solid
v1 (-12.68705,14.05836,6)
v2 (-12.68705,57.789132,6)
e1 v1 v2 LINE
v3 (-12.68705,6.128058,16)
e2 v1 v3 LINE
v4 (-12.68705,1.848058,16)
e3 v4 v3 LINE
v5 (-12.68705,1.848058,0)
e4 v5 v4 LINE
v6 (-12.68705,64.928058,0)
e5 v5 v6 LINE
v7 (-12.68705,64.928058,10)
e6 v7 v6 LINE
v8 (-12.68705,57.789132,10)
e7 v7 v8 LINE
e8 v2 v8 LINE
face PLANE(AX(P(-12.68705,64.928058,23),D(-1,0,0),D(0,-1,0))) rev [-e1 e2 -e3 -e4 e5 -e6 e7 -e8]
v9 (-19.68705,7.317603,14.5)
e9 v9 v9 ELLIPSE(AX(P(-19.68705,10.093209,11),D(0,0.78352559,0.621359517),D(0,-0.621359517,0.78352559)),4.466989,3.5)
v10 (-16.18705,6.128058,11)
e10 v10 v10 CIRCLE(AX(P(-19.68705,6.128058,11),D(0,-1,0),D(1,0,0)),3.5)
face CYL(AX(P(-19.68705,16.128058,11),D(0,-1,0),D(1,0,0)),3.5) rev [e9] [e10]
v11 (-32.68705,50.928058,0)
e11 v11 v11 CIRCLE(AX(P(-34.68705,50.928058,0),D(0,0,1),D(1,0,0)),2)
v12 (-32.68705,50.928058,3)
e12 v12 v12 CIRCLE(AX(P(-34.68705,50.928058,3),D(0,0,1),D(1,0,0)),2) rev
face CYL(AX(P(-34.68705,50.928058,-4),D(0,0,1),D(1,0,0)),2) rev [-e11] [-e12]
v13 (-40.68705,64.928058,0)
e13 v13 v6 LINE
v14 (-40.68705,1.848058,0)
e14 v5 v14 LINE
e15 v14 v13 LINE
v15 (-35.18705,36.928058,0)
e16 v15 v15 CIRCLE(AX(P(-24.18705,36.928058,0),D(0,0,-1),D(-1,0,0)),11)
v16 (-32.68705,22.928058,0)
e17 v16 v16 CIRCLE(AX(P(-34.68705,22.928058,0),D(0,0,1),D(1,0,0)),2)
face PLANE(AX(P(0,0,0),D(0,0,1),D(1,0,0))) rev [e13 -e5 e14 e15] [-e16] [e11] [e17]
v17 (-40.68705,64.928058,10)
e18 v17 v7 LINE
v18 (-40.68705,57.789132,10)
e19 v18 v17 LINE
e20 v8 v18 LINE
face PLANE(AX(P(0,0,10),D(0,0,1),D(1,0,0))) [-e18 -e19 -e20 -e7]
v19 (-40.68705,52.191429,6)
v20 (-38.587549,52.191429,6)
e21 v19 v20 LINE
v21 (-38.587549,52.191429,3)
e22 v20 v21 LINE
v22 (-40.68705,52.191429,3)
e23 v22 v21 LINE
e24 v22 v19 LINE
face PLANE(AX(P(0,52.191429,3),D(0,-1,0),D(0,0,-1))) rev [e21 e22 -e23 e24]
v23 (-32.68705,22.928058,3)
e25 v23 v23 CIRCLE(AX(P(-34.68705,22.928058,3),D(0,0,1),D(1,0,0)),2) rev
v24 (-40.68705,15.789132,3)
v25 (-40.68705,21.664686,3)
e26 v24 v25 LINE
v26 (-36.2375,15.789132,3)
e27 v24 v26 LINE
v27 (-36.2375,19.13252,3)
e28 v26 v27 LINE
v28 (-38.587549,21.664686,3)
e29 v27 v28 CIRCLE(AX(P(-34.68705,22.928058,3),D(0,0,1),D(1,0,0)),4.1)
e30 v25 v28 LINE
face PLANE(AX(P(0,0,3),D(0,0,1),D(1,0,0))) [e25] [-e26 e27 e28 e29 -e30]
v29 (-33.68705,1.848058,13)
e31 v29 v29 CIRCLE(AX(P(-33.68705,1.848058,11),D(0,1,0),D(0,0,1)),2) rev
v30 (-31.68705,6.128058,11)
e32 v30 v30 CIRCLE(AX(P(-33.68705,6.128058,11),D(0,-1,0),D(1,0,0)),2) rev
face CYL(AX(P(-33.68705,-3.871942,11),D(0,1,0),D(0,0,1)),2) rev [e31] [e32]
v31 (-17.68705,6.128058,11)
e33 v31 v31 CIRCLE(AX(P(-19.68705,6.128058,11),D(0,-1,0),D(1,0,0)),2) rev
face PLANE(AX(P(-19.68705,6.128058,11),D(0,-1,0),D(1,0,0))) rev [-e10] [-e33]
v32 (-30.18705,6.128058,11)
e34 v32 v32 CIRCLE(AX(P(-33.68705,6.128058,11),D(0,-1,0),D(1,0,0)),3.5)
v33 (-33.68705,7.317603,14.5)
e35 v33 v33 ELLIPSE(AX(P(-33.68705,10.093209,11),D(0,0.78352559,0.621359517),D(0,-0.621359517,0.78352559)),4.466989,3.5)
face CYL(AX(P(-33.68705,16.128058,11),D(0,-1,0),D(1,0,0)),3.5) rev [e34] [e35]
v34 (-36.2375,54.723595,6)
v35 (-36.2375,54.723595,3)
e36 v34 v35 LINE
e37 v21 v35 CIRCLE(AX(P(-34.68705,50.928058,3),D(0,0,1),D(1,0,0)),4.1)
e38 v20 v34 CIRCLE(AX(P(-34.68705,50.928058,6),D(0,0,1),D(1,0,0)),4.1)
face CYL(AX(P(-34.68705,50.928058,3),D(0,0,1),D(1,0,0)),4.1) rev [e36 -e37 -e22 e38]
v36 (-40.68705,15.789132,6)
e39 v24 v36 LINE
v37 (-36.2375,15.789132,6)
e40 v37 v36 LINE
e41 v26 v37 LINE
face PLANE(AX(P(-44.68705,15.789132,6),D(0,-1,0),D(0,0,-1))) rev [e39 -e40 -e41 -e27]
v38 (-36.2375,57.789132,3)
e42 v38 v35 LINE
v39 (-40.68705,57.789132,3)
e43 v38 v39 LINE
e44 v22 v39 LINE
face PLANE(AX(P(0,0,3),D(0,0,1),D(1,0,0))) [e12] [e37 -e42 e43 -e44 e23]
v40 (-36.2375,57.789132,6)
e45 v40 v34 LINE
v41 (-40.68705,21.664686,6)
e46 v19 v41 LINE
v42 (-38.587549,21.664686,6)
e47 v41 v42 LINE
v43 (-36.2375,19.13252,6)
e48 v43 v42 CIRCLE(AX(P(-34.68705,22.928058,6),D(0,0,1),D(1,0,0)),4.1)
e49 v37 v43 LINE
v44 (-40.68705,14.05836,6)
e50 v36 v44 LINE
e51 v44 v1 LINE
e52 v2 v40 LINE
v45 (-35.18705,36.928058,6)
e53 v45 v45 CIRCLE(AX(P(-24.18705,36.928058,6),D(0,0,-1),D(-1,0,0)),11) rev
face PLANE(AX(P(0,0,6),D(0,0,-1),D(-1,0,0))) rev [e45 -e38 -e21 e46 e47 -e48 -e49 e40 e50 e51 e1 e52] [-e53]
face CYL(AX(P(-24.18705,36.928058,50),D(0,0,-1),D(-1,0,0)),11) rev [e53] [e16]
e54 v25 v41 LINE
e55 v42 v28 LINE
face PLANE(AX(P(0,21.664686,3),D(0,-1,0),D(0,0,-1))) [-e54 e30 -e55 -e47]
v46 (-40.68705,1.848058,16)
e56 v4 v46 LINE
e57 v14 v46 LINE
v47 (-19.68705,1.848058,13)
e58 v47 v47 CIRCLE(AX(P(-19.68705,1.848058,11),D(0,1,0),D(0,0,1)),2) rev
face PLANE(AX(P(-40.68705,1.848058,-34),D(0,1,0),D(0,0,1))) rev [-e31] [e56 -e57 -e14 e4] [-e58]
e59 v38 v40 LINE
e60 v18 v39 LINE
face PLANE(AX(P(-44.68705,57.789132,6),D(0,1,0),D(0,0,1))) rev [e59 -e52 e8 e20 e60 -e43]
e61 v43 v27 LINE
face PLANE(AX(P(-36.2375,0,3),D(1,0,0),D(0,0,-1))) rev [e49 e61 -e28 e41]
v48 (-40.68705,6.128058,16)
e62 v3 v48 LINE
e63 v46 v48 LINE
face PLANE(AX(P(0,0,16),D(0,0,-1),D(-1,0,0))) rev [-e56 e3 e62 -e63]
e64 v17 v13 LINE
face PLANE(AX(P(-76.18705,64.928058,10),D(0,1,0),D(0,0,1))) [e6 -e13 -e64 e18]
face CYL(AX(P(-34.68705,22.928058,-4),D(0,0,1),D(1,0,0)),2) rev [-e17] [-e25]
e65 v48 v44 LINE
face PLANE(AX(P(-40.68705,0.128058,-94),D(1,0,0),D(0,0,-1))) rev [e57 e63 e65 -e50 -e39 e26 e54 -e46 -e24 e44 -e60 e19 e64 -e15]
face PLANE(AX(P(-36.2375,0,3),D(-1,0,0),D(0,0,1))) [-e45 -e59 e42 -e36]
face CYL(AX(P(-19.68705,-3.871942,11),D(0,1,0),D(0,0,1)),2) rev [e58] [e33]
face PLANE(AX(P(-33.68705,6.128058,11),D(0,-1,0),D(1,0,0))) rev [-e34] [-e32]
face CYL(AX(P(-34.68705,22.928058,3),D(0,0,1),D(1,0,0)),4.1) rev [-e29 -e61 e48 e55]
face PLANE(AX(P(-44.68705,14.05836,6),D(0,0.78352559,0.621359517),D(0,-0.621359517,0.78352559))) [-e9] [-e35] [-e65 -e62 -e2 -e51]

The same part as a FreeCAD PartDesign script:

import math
import FreeCAD as App
import Part
import Sketcher
from FreeCAD import Vector
Q = App.Units.Quantity


def add_polygon(sketch, points):
    """Adds a closed chain of lines whose ends are joined by coincident constraints."""
    first, n = sketch.GeometryCount, len(points)
    for a, b in zip(points, points[1:] + points[:1]):
        sketch.addGeometry(Part.LineSegment(App.Vector(*a, 0), App.Vector(*b, 0)), False)
    for i in range(n):
        sketch.addConstraint(Sketcher.Constraint("Coincident", first + i, 2, first + (i + 1) % n, 1))

doc = App.newDocument("Part")
params = doc.addObject("Spreadsheet::Sheet", "Params")
for row, (alias, value) in enumerate([
    ("sketch1_width", "93 mm"),
    ("sketch1_height", "100 mm"),
    ("pad1_length", "10 mm"),
    ("sketch2_width", "15 mm"),
    ("sketch2_height", "10.01 mm"),
    ("pad2_length", "24 mm"),
    ("sketch3_diameter", "4 mm"),
    ("pocket1_length", "50 mm"),
    ("sketch4_diameter", "22 mm"),
    ("pocket2_length", "50 mm"),
    ("sketch5_height", "42 mm"),
    ("sketch5_width", "61.5 mm"),
    ("pocket3_length", "4 mm"),
    ("sketch6_diameter", "22 mm"),
    ("pocket4_length", "15 mm"),
    ("sketch7_diameter", "4 mm"),
    ("pocket5_length", "10 mm"),
    ("sketch8_width", "40 mm"),
    ("sketch8_height", "6 mm"),
    ("pad3_length", "27 mm"),
    ("sketch9_width", "40 mm"),
    ("sketch9_height", "6.3 mm"),
    ("pad4_length", "40 mm"),
    ("sketch10_diameter", "16 mm"),
    ("pocket6_length", "40 mm"),
    ("sketch11_height", "41.8 mm"),
    ("pocket7_length", "40 mm"),
    ("sketch12_width", "31.5 mm"),
    ("sketch12_height", "23.2 mm"),
    ("pocket8_length", "20 mm"),
    ("sketch13_radius", "4 mm"),
    ("pocket9_length", "3 mm"),
    ("sketch14_diameter", "8 mm"),
    ("sketch14_diameter2", "8.2 mm"),
    ("pocket10_length", "3 mm"),
    ("sketch15_width", "29.5 mm"),
    ("sketch15_height", "58.2 mm"),
    ("pocket11_length", "23 mm"),
    ("sketch16_width", "32 mm"),
    ("sketch16_height", "4 mm"),
    ("pocket12_length", "23 mm"),
    ("sketch17_width", "32 mm"),
    ("sketch17_height", "6 mm"),
    ("pad5_length", "6.6 mm"),
    ("sketch18_width", "32 mm"),
    ("sketch18_height", "6 mm"),
    ("pad6_length", "10 mm"),
    ("sketch19_diameter", "4 mm"),
    ("pocket13_length", "10 mm"),
    ("sketch20_height", "10 mm"),
    ("pad7_length", "32 mm"),
    ("sketch21_diameter", "7 mm"),
    ("pocket14_length", "10 mm"),
    ("sketch22_width", "46 mm"),
    ("sketch22_height", "27 mm"),
    ("pocket15_length", "50 mm"),
    ("sketch23_height", "35 mm"),
    ("sketch23_width", "31.75 mm"),
    ("pocket16_length", "50 mm"),
    ("sketch24_width", "4 mm"),
    ("pocket17_length", "110 mm"),
    ("sketch25_width", "28 mm"),
    ("sketch25_height", "1.72 mm"),
    ("pocket18_length", "50 mm"),
], start=1):
    params.set(f"A{row}", alias)
    params.set(f"B{row}", "=" + value)
    params.setAlias(f"B{row}", alias)

body = doc.addObject("PartDesign::Body", "Body")

# Sketch on XY plane
sketch1 = body.newObject("Sketcher::SketchObject", "Sketch")
sketch1.AttachmentSupport = (doc.getObject("XY_Plane"), [""])
sketch1.MapMode = "FlatFace"
add_polygon(sketch1, [(-76, 65), (-76, -35), (17, -35), (17, 65)])  # lines 0-3
sketch1.addConstraint(Sketcher.Constraint("Vertical", 0))
sketch1.addConstraint(Sketcher.Constraint("Horizontal", 1))
sketch1.addConstraint(Sketcher.Constraint("Vertical", 2))
sketch1.addConstraint(Sketcher.Constraint("Horizontal", 3))
sketch1.addConstraint(Sketcher.Constraint("DistanceX", 1, 1, 1, 2, Q("93 mm")))
sketch1.addConstraint(Sketcher.Constraint("DistanceY", 0, 2, 0, 1, Q("100 mm")))
sketch1.addConstraint(Sketcher.Constraint("DistanceX", 0, 2, -1, 1, Q("76.18705 mm")))
sketch1.addConstraint(Sketcher.Constraint("DistanceY", 0, 2, -1, 1, Q("35.071942 mm")))
sketch1.setExpression("Constraints[8]", "Params.sketch1_width")
sketch1.setExpression("Constraints[9]", "Params.sketch1_height")
pad1 = body.newObject("PartDesign::Pad", "Pad")
pad1.Profile = sketch1
pad1.setExpression("Length", "Params.pad1_length")

# Sketch on YZ plane
sketch2 = body.newObject("Sketcher::SketchObject", "Sketch001")
sketch2.AttachmentSupport = (doc.getObject("YZ_Plane"), [""])
sketch2.MapMode = "FlatFace"
sketch2.AttachmentOffset = App.Placement(Vector(0, 0, 16.81295), App.Rotation())
add_polygon(sketch2, [(-5, 10), (-20, 10), (-20, 0), (-5, 0)])  # lines 0-3
sketch2.addConstraint(Sketcher.Constraint("Horizontal", 0))
sketch2.addConstraint(Sketcher.Constraint("Vertical", 1))
sketch2.addConstraint(Sketcher.Constraint("Horizontal", 2))
sketch2.addConstraint(Sketcher.Constraint("Vertical", 3))
sketch2.addConstraint(Sketcher.Constraint("DistanceX", 0, 2, 0, 1, Q("15 mm")))
sketch2.addConstraint(Sketcher.Constraint("DistanceY", -1, 1, 0, 2, Q("10 mm")))
sketch2.addConstraint(Sketcher.Constraint("DistanceY", 1, 2, 1, 1, Q("10.01 mm")))
sketch2.addConstraint(Sketcher.Constraint("DistanceX", 0, 2, -1, 1, Q("20.071942 mm")))
sketch2.setExpression("Constraints[8]", "Params.sketch2_width")
sketch2.setExpression("Constraints[10]", "Params.sketch2_height")
pad2 = body.newObject("PartDesign::Pad", "Pad001")
pad2.Profile = sketch2
pad2.setExpression("Length", "Params.pad2_length")

# Sketch on XZ plane
sketch3 = body.newObject("Sketcher::SketchObject", "Sketch002")
sketch3.AttachmentSupport = (doc.getObject("XZ_Plane"), [""])
sketch3.MapMode = "FlatFace"
sketch3.AttachmentOffset = App.Placement(Vector(0, 0, 5.071942), App.Rotation())
sketch3.addGeometry(Part.Circle(Vector(26.8, 5, 0), Vector(0, 0, 1), 2), False)
sketch3.addConstraint(Sketcher.Constraint("Diameter", 0, Q("4 mm")))
sketch3.addConstraint(Sketcher.Constraint("DistanceY", -1, 1, 0, 3, Q("5 mm")))
sketch3.addConstraint(Sketcher.Constraint("DistanceX", -1, 1, 0, 3, Q("26.81295 mm")))
sketch3.setExpression("Constraints[0]", "Params.sketch3_diameter")
pocket1 = body.newObject("PartDesign::Pocket", "Pocket")
pocket1.Profile = sketch3
pocket1.setExpression("Length", "Params.pocket1_length")
pocket1.Reversed = True

# Sketch on XY plane
sketch4 = body.newObject("Sketcher::SketchObject", "Sketch003")
sketch4.AttachmentSupport = (doc.getObject("XY_Plane"), [""])
sketch4.MapMode = "FlatFace"
sketch4.addGeometry(Part.Circle(Vector(-24, 37, 0), Vector(0, 0, 1), 11), False)
sketch4.addConstraint(Sketcher.Constraint("Diameter", 0, Q("22 mm")))
sketch4.addConstraint(Sketcher.Constraint("DistanceX", 0, 3, -1, 1, Q("24.18705 mm")))
sketch4.addConstraint(Sketcher.Constraint("DistanceY", -1, 1, 0, 3, Q("36.928058 mm")))
sketch4.setExpression("Constraints[0]", "Params.sketch4_diameter")
pocket2 = body.newObject("PartDesign::Pocket", "Pocket001")
pocket2.Profile = sketch4
pocket2.setExpression("Length", "Params.pocket2_length")
pocket2.Reversed = True

# Sketch on XY plane
sketch5 = body.newObject("Sketcher::SketchObject", "Sketch004")
sketch5.AttachmentSupport = (doc.getObject("XY_Plane"), [""])
sketch5.MapMode = "FlatFace"
sketch5.AttachmentOffset = App.Placement(Vector(0, 0, 10), App.Rotation())
add_polygon(sketch5, [(-45, 58), (-45, 16), (17, 16), (17, 58)])  # lines 0-3
sketch5.addConstraint(Sketcher.Constraint("Vertical", 0))
sketch5.addConstraint(Sketcher.Constraint("Horizontal", 1))
sketch5.addConstraint(Sketcher.Constraint("Vertical", 2))
sketch5.addConstraint(Sketcher.Constraint("Horizontal", 3))
sketch5.addConstraint(Sketcher.Constraint("DistanceY", 0, 2, 0, 1, Q("42 mm")))
sketch5.addConstraint(Sketcher.Constraint("DistanceX", 1, 1, 1, 2, Q("61.5 mm")))
sketch5.addConstraint(Sketcher.Constraint("DistanceX", 0, 2, -1, 1, Q("44.68705 mm")))
sketch5.addConstraint(Sketcher.Constraint("DistanceY", -1, 1, 0, 2, Q("15.789132 mm")))
sketch5.setExpression("Constraints[8]", "Params.sketch5_height")
sketch5.setExpression("Constraints[9]", "Params.sketch5_width")
pocket3 = body.newObject("PartDesign::Pocket", "Pocket002")
pocket3.Profile = sketch5
pocket3.setExpression("Length", "Params.pocket3_length")

# Sketch on XY plane
sketch6 = body.newObject("Sketcher::SketchObject", "Sketch005")
sketch6.AttachmentSupport = (doc.getObject("XY_Plane"), [""])
sketch6.MapMode = "FlatFace"
sketch6.addGeometry(Part.Circle(Vector(-53, 37, 0), Vector(0, 0, 1), 11), False)
sketch6.addConstraint(Sketcher.Constraint("Diameter", 0, Q("22 mm")))
sketch6.addConstraint(Sketcher.Constraint("DistanceX", 0, 3, -1, 1, Q("53.18705 mm")))
sketch6.addConstraint(Sketcher.Constraint("DistanceY", -1, 1, 0, 3, Q("36.928058 mm")))
sketch6.setExpression("Constraints[0]", "Params.sketch6_diameter")
pocket4 = body.newObject("PartDesign::Pocket", "Pocket003")
pocket4.Profile = sketch6
pocket4.setExpression("Length", "Params.pocket4_length")
pocket4.Reversed = True

# Sketch on XY plane
sketch7 = body.newObject("Sketcher::SketchObject", "Sketch006")
sketch7.AttachmentSupport = (doc.getObject("XY_Plane"), [""])
sketch7.MapMode = "FlatFace"
sketch7.AttachmentOffset = App.Placement(Vector(0, 0, 6), App.Rotation())
sketch7.addGeometry(Part.Circle(Vector(-34.7, 50.9, 0), Vector(0, 0, 1), 2), False)
sketch7.addGeometry(Part.Circle(Vector(5.3, 50.9, 0), Vector(0, 0, 1), 2), False)
sketch7.addGeometry(Part.Circle(Vector(-34.7, 22.9, 0), Vector(0, 0, 1), 2), False)
sketch7.addGeometry(Part.Circle(Vector(5.3, 22.9, 0), Vector(0, 0, 1), 2), False)
sketch7.addConstraint(Sketcher.Constraint("Equal", 0, 1))
sketch7.addConstraint(Sketcher.Constraint("Equal", 1, 2))
sketch7.addConstraint(Sketcher.Constraint("Equal", 2, 3))
sketch7.addConstraint(Sketcher.Constraint("Horizontal", 0, 3, 1, 3))
sketch7.addConstraint(Sketcher.Constraint("Horizontal", 2, 3, 3, 3))
sketch7.addConstraint(Sketcher.Constraint("Vertical", 0, 3, 2, 3))
sketch7.addConstraint(Sketcher.Constraint("Vertical", 1, 3, 3, 3))
sketch7.addConstraint(Sketcher.Constraint("Diameter", 0, Q("4 mm")))
sketch7.addConstraint(Sketcher.Constraint("DistanceX", 0, 3, 1, 3, Q("40 mm")))
sketch7.addConstraint(Sketcher.Constraint("DistanceY", 2, 3, 0, 3, Q("28 mm")))
sketch7.addConstraint(Sketcher.Constraint("DistanceX", 0, 3, -1, 1, Q("34.68705 mm")))
sketch7.addConstraint(Sketcher.Constraint("DistanceY", -1, 1, 0, 3, Q("50.928058 mm")))
sketch7.setExpression("Constraints[7]", "Params.sketch7_diameter")
pocket5 = body.newObject("PartDesign::Pocket", "Pocket004")
pocket5.Profile = sketch7
pocket5.setExpression("Length", "Params.pocket5_length")

# Sketch on XY plane
sketch8 = body.newObject("Sketcher::SketchObject", "Sketch007")
sketch8.AttachmentSupport = (doc.getObject("XY_Plane"), [""])
sketch8.MapMode = "FlatFace"
add_polygon(sketch8, [(-36, 65), (-36, 59), (-76, 59), (-76, 65)])  # lines 0-3
sketch8.addConstraint(Sketcher.Constraint("Vertical", 0))
sketch8.addConstraint(Sketcher.Constraint("Horizontal", 1))
sketch8.addConstraint(Sketcher.Constraint("Vertical", 2))
sketch8.addConstraint(Sketcher.Constraint("Horizontal", 3))
sketch8.addConstraint(Sketcher.Constraint("DistanceX", 1, 2, 1, 1, Q("40 mm")))
sketch8.addConstraint(Sketcher.Constraint("DistanceY", 0, 2, 0, 1, Q("6 mm")))
sketch8.addConstraint(Sketcher.Constraint("DistanceX", 0, 2, -1, 1, Q("36.18705 mm")))
sketch8.addConstraint(Sketcher.Constraint("DistanceY", -1, 1, 0, 2, Q("58.928058 mm")))
sketch8.setExpression("Constraints[8]", "Params.sketch8_width")
sketch8.setExpression("Constraints[9]", "Params.sketch8_height")
pad3 = body.newObject("PartDesign::Pad", "Pad002")
pad3.Profile = sketch8
pad3.setExpression("Length", "Params.pad3_length")
pad3.Reversed = True

# Sketch on XZ plane
sketch9 = body.newObject("Sketcher::SketchObject", "Sketch008")
sketch9.AttachmentSupport = (doc.getObject("XZ_Plane"), [""])
sketch9.MapMode = "FlatFace"
sketch9.AttachmentOffset = App.Placement(Vector(0, 0, -58.928058), App.Rotation())
add_polygon(sketch9, [(-76, -21), (-76, -27), (-36, -27), (-36, -21)])  # lines 0-3
sketch9.addConstraint(Sketcher.Constraint("Vertical", 0))
sketch9.addConstraint(Sketcher.Constraint("Horizontal", 1))
sketch9.addConstraint(Sketcher.Constraint("Vertical", 2))
sketch9.addConstraint(Sketcher.Constraint("Horizontal", 3))
sketch9.addConstraint(Sketcher.Constraint("DistanceX", 1, 1, 1, 2, Q("40 mm")))
sketch9.addConstraint(Sketcher.Constraint("DistanceY", 0, 2, 0, 1, Q("6.3 mm")))
sketch9.addConstraint(Sketcher.Constraint("DistanceY", 0, 2, -1, 1, Q("27 mm")))
sketch9.addConstraint(Sketcher.Constraint("DistanceX", 0, 2, -1, 1, Q("76.18705 mm")))
sketch9.setExpression("Constraints[8]", "Params.sketch9_width")
sketch9.setExpression("Constraints[9]", "Params.sketch9_height")
pad4 = body.newObject("PartDesign::Pad", "Pad003")
pad4.Profile = sketch9
pad4.setExpression("Length", "Params.pad4_length")

# Sketch on XY plane
sketch10 = body.newObject("Sketcher::SketchObject", "Sketch009")
sketch10.AttachmentSupport = (doc.getObject("XY_Plane"), [""])
sketch10.MapMode = "FlatFace"
sketch10.AttachmentOffset = App.Placement(Vector(0, 0, 10), App.Rotation())
sketch10.addGeometry(Part.Circle(Vector(-53, 37, 0), Vector(0, 0, 1), 8), False)
sketch10.addConstraint(Sketcher.Constraint("Diameter", 0, Q("16 mm")))
sketch10.addConstraint(Sketcher.Constraint("DistanceX", 0, 3, -1, 1, Q("53.18705 mm")))
sketch10.addConstraint(Sketcher.Constraint("DistanceY", -1, 1, 0, 3, Q("36.928058 mm")))
sketch10.setExpression("Constraints[0]", "Params.sketch10_diameter")
pocket6 = body.newObject("PartDesign::Pocket", "Pocket005")
pocket6.Profile = sketch10
pocket6.setExpression("Length", "Params.pocket6_length")

# Sketch on XY plane
sketch11 = body.newObject("Sketcher::SketchObject", "Sketch010")
sketch11.AttachmentSupport = (doc.getObject("XY_Plane"), [""])
sketch11.MapMode = "FlatFace"
sketch11.AttachmentOffset = App.Placement(Vector(0, 0, 10), App.Rotation())
add_polygon(sketch11, [(-76, 7), (-76, -35), (42, -35), (42, 7)])  # lines 0-3
sketch11.addConstraint(Sketcher.Constraint("Vertical", 0))
sketch11.addConstraint(Sketcher.Constraint("Horizontal", 1))
sketch11.addConstraint(Sketcher.Constraint("Vertical", 2))
sketch11.addConstraint(Sketcher.Constraint("Horizontal", 3))
sketch11.addConstraint(Sketcher.Constraint("DistanceY", 0, 2, 0, 1, Q("41.8 mm")))
sketch11.addConstraint(Sketcher.Constraint("DistanceX", 1, 1, 1, 2, Q("118.277818 mm")))
sketch11.addConstraint(Sketcher.Constraint("DistanceX", 0, 2, -1, 1, Q("76.18705 mm")))
sketch11.addConstraint(Sketcher.Constraint("DistanceY", 0, 2, -1, 1, Q("35.071942 mm")))
sketch11.setExpression("Constraints[8]", "Params.sketch11_height")
pocket7 = body.newObject("PartDesign::Pocket", "Pocket006")
pocket7.Profile = sketch11
pocket7.setExpression("Length", "Params.pocket7_length")

# Sketch on XY plane
sketch12 = body.newObject("Sketcher::SketchObject", "Sketch011")
sketch12.AttachmentSupport = (doc.getObject("XY_Plane"), [""])
sketch12.MapMode = "FlatFace"
sketch12.AttachmentOffset = App.Placement(Vector(0, 0, 10), App.Rotation())
add_polygon(sketch12, [(-76, 30), (-76, 7), (-45, 7), (-45, 30)])  # lines 0-3
sketch12.addConstraint(Sketcher.Constraint("Vertical", 0))
sketch12.addConstraint(Sketcher.Constraint("Horizontal", 1))
sketch12.addConstraint(Sketcher.Constraint("Vertical", 2))
sketch12.addConstraint(Sketcher.Constraint("Horizontal", 3))
sketch12.addConstraint(Sketcher.Constraint("DistanceX", 1, 1, 1, 2, Q("31.5 mm")))
sketch12.addConstraint(Sketcher.Constraint("DistanceY", 0, 2, 0, 1, Q("23.2 mm")))
sketch12.addConstraint(Sketcher.Constraint("DistanceX", 0, 2, -1, 1, Q("76.18705 mm")))
sketch12.addConstraint(Sketcher.Constraint("DistanceY", -1, 1, 0, 2, Q("6.728058 mm")))
sketch12.setExpression("Constraints[8]", "Params.sketch12_width")
sketch12.setExpression("Constraints[9]", "Params.sketch12_height")
pocket8 = body.newObject("PartDesign::Pocket", "Pocket007")
pocket8.Profile = sketch12
pocket8.setExpression("Length", "Params.pocket8_length")

# Sketch on XY plane
sketch13 = body.newObject("Sketcher::SketchObject", "Sketch012")
sketch13.AttachmentSupport = (doc.getObject("XY_Plane"), [""])
sketch13.MapMode = "FlatFace"
sketch13.AttachmentOffset = App.Placement(Vector(0, 0, 6), App.Rotation())
sketch13.addGeometry(Part.LineSegment(Vector(14.3, 57.8, 0), Vector(6.9, 57.8, 0)), False)
sketch13.addGeometry(Part.LineSegment(Vector(6.9, 57.8, 0), Vector(6.9, 54.6, 0)), False)
sketch13.addGeometry(Part.ArcOfCircle(Part.Circle(Vector(5.3, 50.9, 0), Vector(0, 0, 1), 4), math.radians(18), math.radians(67)), False)
sketch13.addGeometry(Part.LineSegment(Vector(9.1, 52.2, 0), Vector(14.3, 52.2, 0)), False)
sketch13.addGeometry(Part.LineSegment(Vector(14.3, 52.2, 0), Vector(14.3, 57.8, 0)), False)
sketch13.addGeometry(Part.LineSegment(Vector(6.9, 19.2, 0), Vector(6.9, 15.8, 0)), False)
sketch13.addGeometry(Part.LineSegment(Vector(6.9, 15.8, 0), Vector(14.3, 15.8, 0)), False)
sketch13.addGeometry(Part.LineSegment(Vector(14.3, 15.8, 0), Vector(14.3, 20.9, 0)), False)
sketch13.addGeometry(Part.LineSegment(Vector(14.3, 20.9, 0), Vector(8.8, 20.9, 0)), False)
sketch13.addGeometry(Part.ArcOfCircle(Part.Circle(Vector(5.3, 22.9, 0), Vector(0, 0, 1), 4), math.radians(-67), math.radians(-30)), False)
sketch13.addGeometry(Part.LineSegment(Vector(-36.2, 57.8, 0), Vector(-44.7, 57.8, 0)), False)
sketch13.addGeometry(Part.LineSegment(Vector(-44.7, 57.8, 0), Vector(-44.7, 52.2, 0)), False)
sketch13.addGeometry(Part.LineSegment(Vector(-44.7, 52.2, 0), Vector(-38.5, 52.2, 0)), False)
sketch13.addGeometry(Part.ArcOfCircle(Part.Circle(Vector(-34.7, 50.9, 0), Vector(0, 0, 1), 4), math.radians(113), math.radians(162)), False)
sketch13.addGeometry(Part.LineSegment(Vector(-36.2, 54.6, 0), Vector(-36.2, 57.8, 0)), False)
sketch13.addGeometry(Part.LineSegment(Vector(-44.7, 21.7, 0), Vector(-44.7, 15.8, 0)), False)
sketch13.addGeometry(Part.LineSegment(Vector(-44.7, 15.8, 0), Vector(-36.2, 15.8, 0)), False)
sketch13.addGeometry(Part.LineSegment(Vector(-36.2, 15.8, 0), Vector(-36.2, 19.2, 0)), False)
sketch13.addGeometry(Part.ArcOfCircle(Part.Circle(Vector(-34.7, 22.9, 0), Vector(0, 0, 1), 4), math.radians(-162), math.radians(-113)), False)
sketch13.addGeometry(Part.LineSegment(Vector(-38.5, 21.7, 0), Vector(-44.7, 21.7, 0)), False)
sketch13.addConstraint(Sketcher.Constraint("Coincident", 0, 2, 1, 1))
sketch13.addConstraint(Sketcher.Constraint("Coincident", 1, 2, 2, 2))
sketch13.addConstraint(Sketcher.Constraint("Coincident", 2, 1, 3, 1))
sketch13.addConstraint(Sketcher.Constraint("Coincident", 3, 2, 4, 1))
sketch13.addConstraint(Sketcher.Constraint("Coincident", 4, 2, 0, 1))
sketch13.addConstraint(Sketcher.Constraint("Coincident", 5, 2, 6, 1))
sketch13.addConstraint(Sketcher.Constraint("Coincident", 6, 2, 7, 1))
sketch13.addConstraint(Sketcher.Constraint("Coincident", 7, 2, 8, 1))
sketch13.addConstraint(Sketcher.Constraint("Coincident", 8, 2, 9, 2))
sketch13.addConstraint(Sketcher.Constraint("Coincident", 9, 1, 5, 1))
sketch13.addConstraint(Sketcher.Constraint("Coincident", 10, 2, 11, 1))
sketch13.addConstraint(Sketcher.Constraint("Coincident", 11, 2, 12, 1))
sketch13.addConstraint(Sketcher.Constraint("Coincident", 12, 2, 13, 2))
sketch13.addConstraint(Sketcher.Constraint("Coincident", 13, 1, 14, 1))
sketch13.addConstraint(Sketcher.Constraint("Coincident", 14, 2, 10, 1))
sketch13.addConstraint(Sketcher.Constraint("Coincident", 15, 2, 16, 1))
sketch13.addConstraint(Sketcher.Constraint("Coincident", 16, 2, 17, 1))
sketch13.addConstraint(Sketcher.Constraint("Coincident", 17, 2, 18, 2))
sketch13.addConstraint(Sketcher.Constraint("Coincident", 18, 1, 19, 1))
sketch13.addConstraint(Sketcher.Constraint("Coincident", 19, 2, 15, 1))
sketch13.addConstraint(Sketcher.Constraint("Horizontal", 0))
sketch13.addConstraint(Sketcher.Constraint("Vertical", 1))
sketch13.addConstraint(Sketcher.Constraint("Horizontal", 3))
sketch13.addConstraint(Sketcher.Constraint("Vertical", 4))
sketch13.addConstraint(Sketcher.Constraint("Vertical", 5))
sketch13.addConstraint(Sketcher.Constraint("Horizontal", 6))
sketch13.addConstraint(Sketcher.Constraint("Vertical", 7))
sketch13.addConstraint(Sketcher.Constraint("Horizontal", 8))
sketch13.addConstraint(Sketcher.Constraint("Horizontal", 10))
sketch13.addConstraint(Sketcher.Constraint("Vertical", 11))
sketch13.addConstraint(Sketcher.Constraint("Horizontal", 12))
sketch13.addConstraint(Sketcher.Constraint("Vertical", 14))
sketch13.addConstraint(Sketcher.Constraint("Vertical", 15))
sketch13.addConstraint(Sketcher.Constraint("Horizontal", 16))
sketch13.addConstraint(Sketcher.Constraint("Vertical", 17))
sketch13.addConstraint(Sketcher.Constraint("Horizontal", 19))
sketch13.addConstraint(Sketcher.Constraint("Equal", 2, 9))
sketch13.addConstraint(Sketcher.Constraint("Equal", 9, 13))
sketch13.addConstraint(Sketcher.Constraint("Equal", 13, 18))
sketch13.addConstraint(Sketcher.Constraint("Horizontal", 2, 3, 13, 3))
sketch13.addConstraint(Sketcher.Constraint("Horizontal", 9, 3, 18, 3))
sketch13.addConstraint(Sketcher.Constraint("Horizontal", 4, 2, 10, 2))
sketch13.addConstraint(Sketcher.Constraint("Horizontal", 3, 2, 11, 2))
sketch13.addConstraint(Sketcher.Constraint("Horizontal", 1, 2, 13, 1))
sketch13.addConstraint(Sketcher.Constraint("Horizontal", 6, 2, 15, 2))
sketch13.addConstraint(Sketcher.Constraint("Horizontal", 9, 1, 17, 2))
sketch13.addConstraint(Sketcher.Constraint("Vertical", 2, 3, 9, 3))
sketch13.addConstraint(Sketcher.Constraint("Vertical", 13, 3, 18, 3))
sketch13.addConstraint(Sketcher.Constraint("Vertical", 1, 2, 5, 2))
sketch13.addConstraint(Sketcher.Constraint("Vertical", 4, 2, 6, 2))
sketch13.addConstraint(Sketcher.Constraint("Vertical", 11, 2, 15, 2))
sketch13.addConstraint(Sketcher.Constraint("Vertical", 12, 2, 18, 1))
sketch13.addConstraint(Sketcher.Constraint("Radius", 2, Q("4 mm")))
sketch13.addConstraint(Sketcher.Constraint("DistanceY", 9, 3, 2, 3, Q("28 mm")))
sketch13.addConstraint(Sketcher.Constraint("DistanceX", 13, 3, 2, 3, Q("40 mm")))
sketch13.addConstraint(Sketcher.Constraint("DistanceY", 7, 2, 9, 3, Q("2 mm")))
sketch13.addConstraint(Sketcher.Constraint("DistanceX", 10, 2, 13, 3, Q("10 mm")))
sketch13.addConstraint(Sketcher.Constraint("DistanceX", 8, 2, 8, 1, Q("5.525072 mm")))
sketch13.addConstraint(Sketcher.Constraint("DistanceX", 10, 2, 10, 1, Q("8.449551 mm")))
sketch13.addConstraint(Sketcher.Constraint("DistanceX", -1, 1, 0, 2, Q("6.863399 mm")))
sketch13.addConstraint(Sketcher.Constraint("DistanceX", 3, 1, 3, 2, Q("5.193927 mm")))
sketch13.addConstraint(Sketcher.Constraint("DistanceY", 1, 2, 1, 1, Q("3.173785 mm")))
sketch13.addConstraint(Sketcher.Constraint("DistanceY", 5, 2, 5, 1, Q("3.451635 mm")))
sketch13.addConstraint(Sketcher.Constraint("DistanceY", -1, 1, 2, 1, Q("52.191429 mm")))
sketch13.setExpression("Constraints[52]", "Params.sketch13_radius")
pocket9 = body.newObject("PartDesign::Pocket", "Pocket008")
pocket9.Profile = sketch13
pocket9.setExpression("Length", "Params.pocket9_length")

# Sketch on XY plane
sketch14 = body.newObject("Sketcher::SketchObject", "Sketch013")
sketch14.AttachmentSupport = (doc.getObject("XY_Plane"), [""])
sketch14.MapMode = "FlatFace"
sketch14.AttachmentOffset = App.Placement(Vector(0, 0, 6), App.Rotation())
sketch14.addGeometry(Part.Circle(Vector(5.3, 50.9, 0), Vector(0, 0, 1), 4.1), False)
sketch14.addGeometry(Part.Circle(Vector(5.3, 22.9, 0), Vector(0, 0, 1), 4), False)
sketch14.addGeometry(Part.Circle(Vector(-34.7, 50.9, 0), Vector(0, 0, 1), 4.1), False)
sketch14.addGeometry(Part.Circle(Vector(-34.7, 22.9, 0), Vector(0, 0, 1), 4.1), False)
sketch14.addConstraint(Sketcher.Constraint("Equal", 0, 2))
sketch14.addConstraint(Sketcher.Constraint("Equal", 2, 3))
sketch14.addConstraint(Sketcher.Constraint("Horizontal", 0, 3, 2, 3))
sketch14.addConstraint(Sketcher.Constraint("Horizontal", 1, 3, 3, 3))
sketch14.addConstraint(Sketcher.Constraint("Vertical", 0, 3, 1, 3))
sketch14.addConstraint(Sketcher.Constraint("Vertical", 2, 3, 3, 3))
sketch14.addConstraint(Sketcher.Constraint("Diameter", 1, Q("8 mm")))
sketch14.addConstraint(Sketcher.Constraint("Diameter", 0, Q("8.2 mm")))
sketch14.addConstraint(Sketcher.Constraint("DistanceY", 1, 3, 0, 3, Q("28 mm")))
sketch14.addConstraint(Sketcher.Constraint("DistanceX", 2, 3, 0, 3, Q("40 mm")))
sketch14.addConstraint(Sketcher.Constraint("DistanceX", -1, 1, 0, 3, Q("5.31295 mm")))
sketch14.addConstraint(Sketcher.Constraint("DistanceY", -1, 1, 0, 3, Q("50.928058 mm")))
sketch14.setExpression("Constraints[6]", "Params.sketch14_diameter")
sketch14.setExpression("Constraints[7]", "Params.sketch14_diameter2")
pocket10 = body.newObject("PartDesign::Pocket", "Pocket009")
pocket10.Profile = sketch14
pocket10.setExpression("Length", "Params.pocket10_length")

# Sketch on XY plane
sketch15 = body.newObject("Sketcher::SketchObject", "Sketch014")
sketch15.AttachmentSupport = (doc.getObject("XY_Plane"), [""])
sketch15.MapMode = "FlatFace"
add_polygon(sketch15, [(17, 65), (17, 7), (-13, 7), (-13, 65)])  # lines 0-3
sketch15.addConstraint(Sketcher.Constraint("Vertical", 0))
sketch15.addConstraint(Sketcher.Constraint("Horizontal", 1))
sketch15.addConstraint(Sketcher.Constraint("Vertical", 2))
sketch15.addConstraint(Sketcher.Constraint("Horizontal", 3))
sketch15.addConstraint(Sketcher.Constraint("DistanceX", 1, 2, 1, 1, Q("29.5 mm")))
sketch15.addConstraint(Sketcher.Constraint("DistanceY", 0, 2, 0, 1, Q("58.2 mm")))
sketch15.addConstraint(Sketcher.Constraint("DistanceX", -1, 1, 0, 2, Q("16.81295 mm")))
sketch15.addConstraint(Sketcher.Constraint("DistanceY", -1, 1, 0, 2, Q("6.728058 mm")))
sketch15.setExpression("Constraints[8]", "Params.sketch15_width")
sketch15.setExpression("Constraints[9]", "Params.sketch15_height")
pocket11 = body.newObject("PartDesign::Pocket", "Pocket010")
pocket11.Profile = sketch15
pocket11.setExpression("Length", "Params.pocket11_length")
pocket11.Reversed = True

# Sketch on XZ plane
sketch16 = body.newObject("Sketcher::SketchObject", "Sketch015")
sketch16.AttachmentSupport = (doc.getObject("XZ_Plane"), [""])
sketch16.MapMode = "FlatFace"
sketch16.AttachmentOffset = App.Placement(Vector(0, 0, -15.789132), App.Rotation())
add_polygon(sketch16, [(-44.7, 6), (-44.7, 10), (-12.7, 10), (-12.7, 6)])  # lines 0-3
sketch16.addConstraint(Sketcher.Constraint("Vertical", 0))
sketch16.addConstraint(Sketcher.Constraint("Horizontal", 1))
sketch16.addConstraint(Sketcher.Constraint("Vertical", 2))
sketch16.addConstraint(Sketcher.Constraint("Horizontal", 3))
sketch16.addConstraint(Sketcher.Constraint("DistanceX", 1, 1, 1, 2, Q("32 mm")))
sketch16.addConstraint(Sketcher.Constraint("DistanceY", 0, 1, 0, 2, Q("4 mm")))
sketch16.addConstraint(Sketcher.Constraint("DistanceY", -1, 1, 0, 2, Q("10 mm")))
sketch16.addConstraint(Sketcher.Constraint("DistanceX", 0, 2, -1, 1, Q("44.68705 mm")))
sketch16.setExpression("Constraints[8]", "Params.sketch16_width")
sketch16.setExpression("Constraints[9]", "Params.sketch16_height")
pocket12 = body.newObject("PartDesign::Pocket", "Pocket011")
pocket12.Profile = sketch16
pocket12.setExpression("Length", "Params.pocket12_length")
pocket12.Reversed = True

# Sketch on XZ plane
sketch17 = body.newObject("Sketcher::SketchObject", "Sketch016")
sketch17.AttachmentSupport = (doc.getObject("XZ_Plane"), [""])
sketch17.MapMode = "FlatFace"
sketch17.AttachmentOffset = App.Placement(Vector(0, 0, -6.728058), App.Rotation())
add_polygon(sketch17, [(-45, 6), (-45, 0), (-13, 0), (-13, 6)])  # lines 0-3
sketch17.addConstraint(Sketcher.Constraint("Vertical", 0))
sketch17.addConstraint(Sketcher.Constraint("Horizontal", 1))
sketch17.addConstraint(Sketcher.Constraint("Vertical", 2))
sketch17.addConstraint(Sketcher.Constraint("Horizontal", 3))
sketch17.addConstraint(Sketcher.Constraint("PointOnObject", 0, 2, -1))
sketch17.addConstraint(Sketcher.Constraint("DistanceX", 1, 1, 1, 2, Q("32 mm")))
sketch17.addConstraint(Sketcher.Constraint("DistanceY", 0, 2, 0, 1, Q("6 mm")))
sketch17.addConstraint(Sketcher.Constraint("DistanceX", 0, 2, -1, 1, Q("44.68705 mm")))
sketch17.setExpression("Constraints[9]", "Params.sketch17_width")
sketch17.setExpression("Constraints[10]", "Params.sketch17_height")
pad5 = body.newObject("PartDesign::Pad", "Pad004")
pad5.Profile = sketch17
pad5.setExpression("Length", "Params.pad5_length")

# Sketch on XY plane
sketch18 = body.newObject("Sketcher::SketchObject", "Sketch017")
sketch18.AttachmentSupport = (doc.getObject("XY_Plane"), [""])
sketch18.MapMode = "FlatFace"
sketch18.AttachmentOffset = App.Placement(Vector(0, 0, 6), App.Rotation())
add_polygon(sketch18, [(-45, 6), (-45, 0), (-13, 0), (-13, 6)])  # lines 0-3
sketch18.addConstraint(Sketcher.Constraint("Vertical", 0))
sketch18.addConstraint(Sketcher.Constraint("Horizontal", 1))
sketch18.addConstraint(Sketcher.Constraint("Vertical", 2))
sketch18.addConstraint(Sketcher.Constraint("Horizontal", 3))
sketch18.addConstraint(Sketcher.Constraint("DistanceX", 1, 1, 1, 2, Q("32 mm")))
sketch18.addConstraint(Sketcher.Constraint("DistanceY", 0, 2, 0, 1, Q("6 mm")))
sketch18.addConstraint(Sketcher.Constraint("DistanceX", 0, 2, -1, 1, Q("44.68705 mm")))
sketch18.addConstraint(Sketcher.Constraint("DistanceY", -1, 1, 0, 2, Q("0.128058 mm")))
sketch18.setExpression("Constraints[8]", "Params.sketch18_width")
sketch18.setExpression("Constraints[9]", "Params.sketch18_height")
pad6 = body.newObject("PartDesign::Pad", "Pad005")
pad6.Profile = sketch18
pad6.setExpression("Length", "Params.pad6_length")

# Sketch on XZ plane
sketch19 = body.newObject("Sketcher::SketchObject", "Sketch018")
sketch19.AttachmentSupport = (doc.getObject("XZ_Plane"), [""])
sketch19.MapMode = "FlatFace"
sketch19.AttachmentOffset = App.Placement(Vector(0, 0, -6.128058), App.Rotation())
sketch19.addGeometry(Part.Circle(Vector(-33.7, 11, 0), Vector(0, 0, 1), 2), False)
sketch19.addGeometry(Part.Circle(Vector(-19.7, 11, 0), Vector(0, 0, 1), 2), False)
sketch19.addConstraint(Sketcher.Constraint("Equal", 0, 1))
sketch19.addConstraint(Sketcher.Constraint("Horizontal", 0, 3, 1, 3))
sketch19.addConstraint(Sketcher.Constraint("Diameter", 0, Q("4 mm")))
sketch19.addConstraint(Sketcher.Constraint("DistanceY", -1, 1, 0, 3, Q("11 mm")))
sketch19.addConstraint(Sketcher.Constraint("DistanceX", 0, 3, 1, 3, Q("14 mm")))
sketch19.addConstraint(Sketcher.Constraint("DistanceX", 0, 3, -1, 1, Q("33.68705 mm")))
sketch19.setExpression("Constraints[2]", "Params.sketch19_diameter")
pocket13 = body.newObject("PartDesign::Pocket", "Pocket012")
pocket13.Profile = sketch19
pocket13.setExpression("Length", "Params.pocket13_length")
pocket13.Reversed = True

# Sketch on YZ plane
sketch20 = body.newObject("Sketcher::SketchObject", "Sketch019")
sketch20.AttachmentSupport = (doc.getObject("YZ_Plane"), [""])
sketch20.MapMode = "FlatFace"
sketch20.AttachmentOffset = App.Placement(Vector(0, 0, -44.68705), App.Rotation())
add_polygon(sketch20, [(6, 16), (6, 6), (14, 6)])  # lines 0-2
sketch20.addConstraint(Sketcher.Constraint("Vertical", 0))
sketch20.addConstraint(Sketcher.Constraint("Horizontal", 1))
sketch20.addConstraint(Sketcher.Constraint("DistanceY", 0, 2, 0, 1, Q("10 mm")))
sketch20.addConstraint(Sketcher.Constraint("DistanceY", -1, 1, 0, 2, Q("6 mm")))
sketch20.addConstraint(Sketcher.Constraint("DistanceX", 1, 1, 1, 2, Q("7.930303 mm")))
sketch20.addConstraint(Sketcher.Constraint("DistanceX", -1, 1, 1, 2, Q("14.05836 mm")))
sketch20.setExpression("Constraints[5]", "Params.sketch20_height")
pad7 = body.newObject("PartDesign::Pad", "Pad006")
pad7.Profile = sketch20
pad7.setExpression("Length", "Params.pad7_length")

# Sketch on XZ plane
sketch21 = body.newObject("Sketcher::SketchObject", "Sketch020")
sketch21.AttachmentSupport = (doc.getObject("XZ_Plane"), [""])
sketch21.MapMode = "FlatFace"
sketch21.AttachmentOffset = App.Placement(Vector(0, 0, -6.128058), App.Rotation())
sketch21.addGeometry(Part.Circle(Vector(-19.7, 11, 0), Vector(0, 0, 1), 3.5), False)
sketch21.addGeometry(Part.Circle(Vector(-33.7, 11, 0), Vector(0, 0, 1), 3.5), False)
sketch21.addConstraint(Sketcher.Constraint("Equal", 0, 1))
sketch21.addConstraint(Sketcher.Constraint("Horizontal", 0, 3, 1, 3))
sketch21.addConstraint(Sketcher.Constraint("Diameter", 0, Q("7 mm")))
sketch21.addConstraint(Sketcher.Constraint("DistanceY", -1, 1, 0, 3, Q("11 mm")))
sketch21.addConstraint(Sketcher.Constraint("DistanceX", 1, 3, 0, 3, Q("14 mm")))
sketch21.addConstraint(Sketcher.Constraint("DistanceX", 0, 3, -1, 1, Q("19.68705 mm")))
sketch21.setExpression("Constraints[2]", "Params.sketch21_diameter")
pocket14 = body.newObject("PartDesign::Pocket", "Pocket013")
pocket14.Profile = sketch21
pocket14.setExpression("Length", "Params.pocket14_length")

# Sketch on YZ plane
sketch22 = body.newObject("Sketcher::SketchObject", "Sketch021")
sketch22.AttachmentSupport = (doc.getObject("YZ_Plane"), [""])
sketch22.MapMode = "FlatFace"
sketch22.AttachmentOffset = App.Placement(Vector(0, 0, -36.18705), App.Rotation())
add_polygon(sketch22, [(65, 0), (19, 0), (19, -27), (65, -27)])  # lines 0-3
sketch22.addConstraint(Sketcher.Constraint("Horizontal", 0))
sketch22.addConstraint(Sketcher.Constraint("Vertical", 1))
sketch22.addConstraint(Sketcher.Constraint("Horizontal", 2))
sketch22.addConstraint(Sketcher.Constraint("Vertical", 3))
sketch22.addConstraint(Sketcher.Constraint("PointOnObject", 0, 2, -1))
sketch22.addConstraint(Sketcher.Constraint("DistanceX", 0, 2, 0, 1, Q("46 mm")))
sketch22.addConstraint(Sketcher.Constraint("DistanceY", 1, 2, 1, 1, Q("27 mm")))
sketch22.addConstraint(Sketcher.Constraint("DistanceX", -1, 1, 0, 2, Q("18.928058 mm")))
sketch22.setExpression("Constraints[9]", "Params.sketch22_width")
sketch22.setExpression("Constraints[10]", "Params.sketch22_height")
pocket15 = body.newObject("PartDesign::Pocket", "Pocket014")
pocket15.Profile = sketch22
pocket15.setExpression("Length", "Params.pocket15_length")

# Sketch on XY plane
sketch23 = body.newObject("Sketcher::SketchObject", "Sketch022")
sketch23.AttachmentSupport = (doc.getObject("XY_Plane"), [""])
sketch23.MapMode = "FlatFace"
sketch23.AttachmentOffset = App.Placement(Vector(0, 0, 10), App.Rotation())
add_polygon(sketch23, [(-76, 65), (-76, 30), (-44, 30), (-44, 65)])  # lines 0-3
sketch23.addConstraint(Sketcher.Constraint("Vertical", 0))
sketch23.addConstraint(Sketcher.Constraint("Horizontal", 1))
sketch23.addConstraint(Sketcher.Constraint("Vertical", 2))
sketch23.addConstraint(Sketcher.Constraint("Horizontal", 3))
sketch23.addConstraint(Sketcher.Constraint("DistanceY", 0, 2, 0, 1, Q("35 mm")))
sketch23.addConstraint(Sketcher.Constraint("DistanceX", 1, 1, 1, 2, Q("31.75 mm")))
sketch23.addConstraint(Sketcher.Constraint("DistanceX", 0, 2, -1, 1, Q("76.18705 mm")))
sketch23.addConstraint(Sketcher.Constraint("DistanceY", -1, 1, 0, 2, Q("29.928058 mm")))
sketch23.setExpression("Constraints[8]", "Params.sketch23_height")
sketch23.setExpression("Constraints[9]", "Params.sketch23_width")
pocket16 = body.newObject("PartDesign::Pocket", "Pocket015")
pocket16.Profile = sketch23
pocket16.setExpression("Length", "Params.pocket16_length")

# Sketch on XY plane
sketch24 = body.newObject("Sketcher::SketchObject", "Sketch023")
sketch24.AttachmentSupport = (doc.getObject("XY_Plane"), [""])
sketch24.MapMode = "FlatFace"
sketch24.AttachmentOffset = App.Placement(Vector(0, 0, 16), App.Rotation())
add_polygon(sketch24, [(-44.7, 77.9), (-44.7, 0.1), (-40.7, 0.1), (-40.7, 77.9)])  # lines 0-3
sketch24.addConstraint(Sketcher.Constraint("Vertical", 0))
sketch24.addConstraint(Sketcher.Constraint("Horizontal", 1))
sketch24.addConstraint(Sketcher.Constraint("Vertical", 2))
sketch24.addConstraint(Sketcher.Constraint("Horizontal", 3))
sketch24.addConstraint(Sketcher.Constraint("DistanceX", 1, 1, 1, 2, Q("4 mm")))
sketch24.addConstraint(Sketcher.Constraint("DistanceY", 0, 2, 0, 1, Q("77.818306 mm")))
sketch24.addConstraint(Sketcher.Constraint("DistanceX", 0, 2, -1, 1, Q("44.68705 mm")))
sketch24.addConstraint(Sketcher.Constraint("DistanceY", -1, 1, 0, 2, Q("0.128058 mm")))
sketch24.setExpression("Constraints[8]", "Params.sketch24_width")
pocket17 = body.newObject("PartDesign::Pocket", "Pocket016")
pocket17.Profile = sketch24
pocket17.setExpression("Length", "Params.pocket17_length")

# Sketch on XY plane
sketch25 = body.newObject("Sketcher::SketchObject", "Sketch024")
sketch25.AttachmentSupport = (doc.getObject("XY_Plane"), [""])
sketch25.MapMode = "FlatFace"
sketch25.AttachmentOffset = App.Placement(Vector(0, 0, 16), App.Rotation())
add_polygon(sketch25, [(-40.7, 1.8), (-40.7, 0.1), (-12.7, 0.1), (-12.7, 1.8)])  # lines 0-3
sketch25.addConstraint(Sketcher.Constraint("Vertical", 0))
sketch25.addConstraint(Sketcher.Constraint("Horizontal", 1))
sketch25.addConstraint(Sketcher.Constraint("Vertical", 2))
sketch25.addConstraint(Sketcher.Constraint("Horizontal", 3))
sketch25.addConstraint(Sketcher.Constraint("DistanceX", 1, 1, 1, 2, Q("28 mm")))
sketch25.addConstraint(Sketcher.Constraint("DistanceY", 0, 2, 0, 1, Q("1.72 mm")))
sketch25.addConstraint(Sketcher.Constraint("DistanceX", 0, 2, -1, 1, Q("40.68705 mm")))
sketch25.addConstraint(Sketcher.Constraint("DistanceY", -1, 1, 0, 2, Q("0.128058 mm")))
sketch25.setExpression("Constraints[8]", "Params.sketch25_width")
sketch25.setExpression("Constraints[9]", "Params.sketch25_height")
pocket18 = body.newObject("PartDesign::Pocket", "Pocket017")
pocket18.Profile = sketch25
pocket18.setExpression("Length", "Params.pocket18_length")

doc.recompute()
